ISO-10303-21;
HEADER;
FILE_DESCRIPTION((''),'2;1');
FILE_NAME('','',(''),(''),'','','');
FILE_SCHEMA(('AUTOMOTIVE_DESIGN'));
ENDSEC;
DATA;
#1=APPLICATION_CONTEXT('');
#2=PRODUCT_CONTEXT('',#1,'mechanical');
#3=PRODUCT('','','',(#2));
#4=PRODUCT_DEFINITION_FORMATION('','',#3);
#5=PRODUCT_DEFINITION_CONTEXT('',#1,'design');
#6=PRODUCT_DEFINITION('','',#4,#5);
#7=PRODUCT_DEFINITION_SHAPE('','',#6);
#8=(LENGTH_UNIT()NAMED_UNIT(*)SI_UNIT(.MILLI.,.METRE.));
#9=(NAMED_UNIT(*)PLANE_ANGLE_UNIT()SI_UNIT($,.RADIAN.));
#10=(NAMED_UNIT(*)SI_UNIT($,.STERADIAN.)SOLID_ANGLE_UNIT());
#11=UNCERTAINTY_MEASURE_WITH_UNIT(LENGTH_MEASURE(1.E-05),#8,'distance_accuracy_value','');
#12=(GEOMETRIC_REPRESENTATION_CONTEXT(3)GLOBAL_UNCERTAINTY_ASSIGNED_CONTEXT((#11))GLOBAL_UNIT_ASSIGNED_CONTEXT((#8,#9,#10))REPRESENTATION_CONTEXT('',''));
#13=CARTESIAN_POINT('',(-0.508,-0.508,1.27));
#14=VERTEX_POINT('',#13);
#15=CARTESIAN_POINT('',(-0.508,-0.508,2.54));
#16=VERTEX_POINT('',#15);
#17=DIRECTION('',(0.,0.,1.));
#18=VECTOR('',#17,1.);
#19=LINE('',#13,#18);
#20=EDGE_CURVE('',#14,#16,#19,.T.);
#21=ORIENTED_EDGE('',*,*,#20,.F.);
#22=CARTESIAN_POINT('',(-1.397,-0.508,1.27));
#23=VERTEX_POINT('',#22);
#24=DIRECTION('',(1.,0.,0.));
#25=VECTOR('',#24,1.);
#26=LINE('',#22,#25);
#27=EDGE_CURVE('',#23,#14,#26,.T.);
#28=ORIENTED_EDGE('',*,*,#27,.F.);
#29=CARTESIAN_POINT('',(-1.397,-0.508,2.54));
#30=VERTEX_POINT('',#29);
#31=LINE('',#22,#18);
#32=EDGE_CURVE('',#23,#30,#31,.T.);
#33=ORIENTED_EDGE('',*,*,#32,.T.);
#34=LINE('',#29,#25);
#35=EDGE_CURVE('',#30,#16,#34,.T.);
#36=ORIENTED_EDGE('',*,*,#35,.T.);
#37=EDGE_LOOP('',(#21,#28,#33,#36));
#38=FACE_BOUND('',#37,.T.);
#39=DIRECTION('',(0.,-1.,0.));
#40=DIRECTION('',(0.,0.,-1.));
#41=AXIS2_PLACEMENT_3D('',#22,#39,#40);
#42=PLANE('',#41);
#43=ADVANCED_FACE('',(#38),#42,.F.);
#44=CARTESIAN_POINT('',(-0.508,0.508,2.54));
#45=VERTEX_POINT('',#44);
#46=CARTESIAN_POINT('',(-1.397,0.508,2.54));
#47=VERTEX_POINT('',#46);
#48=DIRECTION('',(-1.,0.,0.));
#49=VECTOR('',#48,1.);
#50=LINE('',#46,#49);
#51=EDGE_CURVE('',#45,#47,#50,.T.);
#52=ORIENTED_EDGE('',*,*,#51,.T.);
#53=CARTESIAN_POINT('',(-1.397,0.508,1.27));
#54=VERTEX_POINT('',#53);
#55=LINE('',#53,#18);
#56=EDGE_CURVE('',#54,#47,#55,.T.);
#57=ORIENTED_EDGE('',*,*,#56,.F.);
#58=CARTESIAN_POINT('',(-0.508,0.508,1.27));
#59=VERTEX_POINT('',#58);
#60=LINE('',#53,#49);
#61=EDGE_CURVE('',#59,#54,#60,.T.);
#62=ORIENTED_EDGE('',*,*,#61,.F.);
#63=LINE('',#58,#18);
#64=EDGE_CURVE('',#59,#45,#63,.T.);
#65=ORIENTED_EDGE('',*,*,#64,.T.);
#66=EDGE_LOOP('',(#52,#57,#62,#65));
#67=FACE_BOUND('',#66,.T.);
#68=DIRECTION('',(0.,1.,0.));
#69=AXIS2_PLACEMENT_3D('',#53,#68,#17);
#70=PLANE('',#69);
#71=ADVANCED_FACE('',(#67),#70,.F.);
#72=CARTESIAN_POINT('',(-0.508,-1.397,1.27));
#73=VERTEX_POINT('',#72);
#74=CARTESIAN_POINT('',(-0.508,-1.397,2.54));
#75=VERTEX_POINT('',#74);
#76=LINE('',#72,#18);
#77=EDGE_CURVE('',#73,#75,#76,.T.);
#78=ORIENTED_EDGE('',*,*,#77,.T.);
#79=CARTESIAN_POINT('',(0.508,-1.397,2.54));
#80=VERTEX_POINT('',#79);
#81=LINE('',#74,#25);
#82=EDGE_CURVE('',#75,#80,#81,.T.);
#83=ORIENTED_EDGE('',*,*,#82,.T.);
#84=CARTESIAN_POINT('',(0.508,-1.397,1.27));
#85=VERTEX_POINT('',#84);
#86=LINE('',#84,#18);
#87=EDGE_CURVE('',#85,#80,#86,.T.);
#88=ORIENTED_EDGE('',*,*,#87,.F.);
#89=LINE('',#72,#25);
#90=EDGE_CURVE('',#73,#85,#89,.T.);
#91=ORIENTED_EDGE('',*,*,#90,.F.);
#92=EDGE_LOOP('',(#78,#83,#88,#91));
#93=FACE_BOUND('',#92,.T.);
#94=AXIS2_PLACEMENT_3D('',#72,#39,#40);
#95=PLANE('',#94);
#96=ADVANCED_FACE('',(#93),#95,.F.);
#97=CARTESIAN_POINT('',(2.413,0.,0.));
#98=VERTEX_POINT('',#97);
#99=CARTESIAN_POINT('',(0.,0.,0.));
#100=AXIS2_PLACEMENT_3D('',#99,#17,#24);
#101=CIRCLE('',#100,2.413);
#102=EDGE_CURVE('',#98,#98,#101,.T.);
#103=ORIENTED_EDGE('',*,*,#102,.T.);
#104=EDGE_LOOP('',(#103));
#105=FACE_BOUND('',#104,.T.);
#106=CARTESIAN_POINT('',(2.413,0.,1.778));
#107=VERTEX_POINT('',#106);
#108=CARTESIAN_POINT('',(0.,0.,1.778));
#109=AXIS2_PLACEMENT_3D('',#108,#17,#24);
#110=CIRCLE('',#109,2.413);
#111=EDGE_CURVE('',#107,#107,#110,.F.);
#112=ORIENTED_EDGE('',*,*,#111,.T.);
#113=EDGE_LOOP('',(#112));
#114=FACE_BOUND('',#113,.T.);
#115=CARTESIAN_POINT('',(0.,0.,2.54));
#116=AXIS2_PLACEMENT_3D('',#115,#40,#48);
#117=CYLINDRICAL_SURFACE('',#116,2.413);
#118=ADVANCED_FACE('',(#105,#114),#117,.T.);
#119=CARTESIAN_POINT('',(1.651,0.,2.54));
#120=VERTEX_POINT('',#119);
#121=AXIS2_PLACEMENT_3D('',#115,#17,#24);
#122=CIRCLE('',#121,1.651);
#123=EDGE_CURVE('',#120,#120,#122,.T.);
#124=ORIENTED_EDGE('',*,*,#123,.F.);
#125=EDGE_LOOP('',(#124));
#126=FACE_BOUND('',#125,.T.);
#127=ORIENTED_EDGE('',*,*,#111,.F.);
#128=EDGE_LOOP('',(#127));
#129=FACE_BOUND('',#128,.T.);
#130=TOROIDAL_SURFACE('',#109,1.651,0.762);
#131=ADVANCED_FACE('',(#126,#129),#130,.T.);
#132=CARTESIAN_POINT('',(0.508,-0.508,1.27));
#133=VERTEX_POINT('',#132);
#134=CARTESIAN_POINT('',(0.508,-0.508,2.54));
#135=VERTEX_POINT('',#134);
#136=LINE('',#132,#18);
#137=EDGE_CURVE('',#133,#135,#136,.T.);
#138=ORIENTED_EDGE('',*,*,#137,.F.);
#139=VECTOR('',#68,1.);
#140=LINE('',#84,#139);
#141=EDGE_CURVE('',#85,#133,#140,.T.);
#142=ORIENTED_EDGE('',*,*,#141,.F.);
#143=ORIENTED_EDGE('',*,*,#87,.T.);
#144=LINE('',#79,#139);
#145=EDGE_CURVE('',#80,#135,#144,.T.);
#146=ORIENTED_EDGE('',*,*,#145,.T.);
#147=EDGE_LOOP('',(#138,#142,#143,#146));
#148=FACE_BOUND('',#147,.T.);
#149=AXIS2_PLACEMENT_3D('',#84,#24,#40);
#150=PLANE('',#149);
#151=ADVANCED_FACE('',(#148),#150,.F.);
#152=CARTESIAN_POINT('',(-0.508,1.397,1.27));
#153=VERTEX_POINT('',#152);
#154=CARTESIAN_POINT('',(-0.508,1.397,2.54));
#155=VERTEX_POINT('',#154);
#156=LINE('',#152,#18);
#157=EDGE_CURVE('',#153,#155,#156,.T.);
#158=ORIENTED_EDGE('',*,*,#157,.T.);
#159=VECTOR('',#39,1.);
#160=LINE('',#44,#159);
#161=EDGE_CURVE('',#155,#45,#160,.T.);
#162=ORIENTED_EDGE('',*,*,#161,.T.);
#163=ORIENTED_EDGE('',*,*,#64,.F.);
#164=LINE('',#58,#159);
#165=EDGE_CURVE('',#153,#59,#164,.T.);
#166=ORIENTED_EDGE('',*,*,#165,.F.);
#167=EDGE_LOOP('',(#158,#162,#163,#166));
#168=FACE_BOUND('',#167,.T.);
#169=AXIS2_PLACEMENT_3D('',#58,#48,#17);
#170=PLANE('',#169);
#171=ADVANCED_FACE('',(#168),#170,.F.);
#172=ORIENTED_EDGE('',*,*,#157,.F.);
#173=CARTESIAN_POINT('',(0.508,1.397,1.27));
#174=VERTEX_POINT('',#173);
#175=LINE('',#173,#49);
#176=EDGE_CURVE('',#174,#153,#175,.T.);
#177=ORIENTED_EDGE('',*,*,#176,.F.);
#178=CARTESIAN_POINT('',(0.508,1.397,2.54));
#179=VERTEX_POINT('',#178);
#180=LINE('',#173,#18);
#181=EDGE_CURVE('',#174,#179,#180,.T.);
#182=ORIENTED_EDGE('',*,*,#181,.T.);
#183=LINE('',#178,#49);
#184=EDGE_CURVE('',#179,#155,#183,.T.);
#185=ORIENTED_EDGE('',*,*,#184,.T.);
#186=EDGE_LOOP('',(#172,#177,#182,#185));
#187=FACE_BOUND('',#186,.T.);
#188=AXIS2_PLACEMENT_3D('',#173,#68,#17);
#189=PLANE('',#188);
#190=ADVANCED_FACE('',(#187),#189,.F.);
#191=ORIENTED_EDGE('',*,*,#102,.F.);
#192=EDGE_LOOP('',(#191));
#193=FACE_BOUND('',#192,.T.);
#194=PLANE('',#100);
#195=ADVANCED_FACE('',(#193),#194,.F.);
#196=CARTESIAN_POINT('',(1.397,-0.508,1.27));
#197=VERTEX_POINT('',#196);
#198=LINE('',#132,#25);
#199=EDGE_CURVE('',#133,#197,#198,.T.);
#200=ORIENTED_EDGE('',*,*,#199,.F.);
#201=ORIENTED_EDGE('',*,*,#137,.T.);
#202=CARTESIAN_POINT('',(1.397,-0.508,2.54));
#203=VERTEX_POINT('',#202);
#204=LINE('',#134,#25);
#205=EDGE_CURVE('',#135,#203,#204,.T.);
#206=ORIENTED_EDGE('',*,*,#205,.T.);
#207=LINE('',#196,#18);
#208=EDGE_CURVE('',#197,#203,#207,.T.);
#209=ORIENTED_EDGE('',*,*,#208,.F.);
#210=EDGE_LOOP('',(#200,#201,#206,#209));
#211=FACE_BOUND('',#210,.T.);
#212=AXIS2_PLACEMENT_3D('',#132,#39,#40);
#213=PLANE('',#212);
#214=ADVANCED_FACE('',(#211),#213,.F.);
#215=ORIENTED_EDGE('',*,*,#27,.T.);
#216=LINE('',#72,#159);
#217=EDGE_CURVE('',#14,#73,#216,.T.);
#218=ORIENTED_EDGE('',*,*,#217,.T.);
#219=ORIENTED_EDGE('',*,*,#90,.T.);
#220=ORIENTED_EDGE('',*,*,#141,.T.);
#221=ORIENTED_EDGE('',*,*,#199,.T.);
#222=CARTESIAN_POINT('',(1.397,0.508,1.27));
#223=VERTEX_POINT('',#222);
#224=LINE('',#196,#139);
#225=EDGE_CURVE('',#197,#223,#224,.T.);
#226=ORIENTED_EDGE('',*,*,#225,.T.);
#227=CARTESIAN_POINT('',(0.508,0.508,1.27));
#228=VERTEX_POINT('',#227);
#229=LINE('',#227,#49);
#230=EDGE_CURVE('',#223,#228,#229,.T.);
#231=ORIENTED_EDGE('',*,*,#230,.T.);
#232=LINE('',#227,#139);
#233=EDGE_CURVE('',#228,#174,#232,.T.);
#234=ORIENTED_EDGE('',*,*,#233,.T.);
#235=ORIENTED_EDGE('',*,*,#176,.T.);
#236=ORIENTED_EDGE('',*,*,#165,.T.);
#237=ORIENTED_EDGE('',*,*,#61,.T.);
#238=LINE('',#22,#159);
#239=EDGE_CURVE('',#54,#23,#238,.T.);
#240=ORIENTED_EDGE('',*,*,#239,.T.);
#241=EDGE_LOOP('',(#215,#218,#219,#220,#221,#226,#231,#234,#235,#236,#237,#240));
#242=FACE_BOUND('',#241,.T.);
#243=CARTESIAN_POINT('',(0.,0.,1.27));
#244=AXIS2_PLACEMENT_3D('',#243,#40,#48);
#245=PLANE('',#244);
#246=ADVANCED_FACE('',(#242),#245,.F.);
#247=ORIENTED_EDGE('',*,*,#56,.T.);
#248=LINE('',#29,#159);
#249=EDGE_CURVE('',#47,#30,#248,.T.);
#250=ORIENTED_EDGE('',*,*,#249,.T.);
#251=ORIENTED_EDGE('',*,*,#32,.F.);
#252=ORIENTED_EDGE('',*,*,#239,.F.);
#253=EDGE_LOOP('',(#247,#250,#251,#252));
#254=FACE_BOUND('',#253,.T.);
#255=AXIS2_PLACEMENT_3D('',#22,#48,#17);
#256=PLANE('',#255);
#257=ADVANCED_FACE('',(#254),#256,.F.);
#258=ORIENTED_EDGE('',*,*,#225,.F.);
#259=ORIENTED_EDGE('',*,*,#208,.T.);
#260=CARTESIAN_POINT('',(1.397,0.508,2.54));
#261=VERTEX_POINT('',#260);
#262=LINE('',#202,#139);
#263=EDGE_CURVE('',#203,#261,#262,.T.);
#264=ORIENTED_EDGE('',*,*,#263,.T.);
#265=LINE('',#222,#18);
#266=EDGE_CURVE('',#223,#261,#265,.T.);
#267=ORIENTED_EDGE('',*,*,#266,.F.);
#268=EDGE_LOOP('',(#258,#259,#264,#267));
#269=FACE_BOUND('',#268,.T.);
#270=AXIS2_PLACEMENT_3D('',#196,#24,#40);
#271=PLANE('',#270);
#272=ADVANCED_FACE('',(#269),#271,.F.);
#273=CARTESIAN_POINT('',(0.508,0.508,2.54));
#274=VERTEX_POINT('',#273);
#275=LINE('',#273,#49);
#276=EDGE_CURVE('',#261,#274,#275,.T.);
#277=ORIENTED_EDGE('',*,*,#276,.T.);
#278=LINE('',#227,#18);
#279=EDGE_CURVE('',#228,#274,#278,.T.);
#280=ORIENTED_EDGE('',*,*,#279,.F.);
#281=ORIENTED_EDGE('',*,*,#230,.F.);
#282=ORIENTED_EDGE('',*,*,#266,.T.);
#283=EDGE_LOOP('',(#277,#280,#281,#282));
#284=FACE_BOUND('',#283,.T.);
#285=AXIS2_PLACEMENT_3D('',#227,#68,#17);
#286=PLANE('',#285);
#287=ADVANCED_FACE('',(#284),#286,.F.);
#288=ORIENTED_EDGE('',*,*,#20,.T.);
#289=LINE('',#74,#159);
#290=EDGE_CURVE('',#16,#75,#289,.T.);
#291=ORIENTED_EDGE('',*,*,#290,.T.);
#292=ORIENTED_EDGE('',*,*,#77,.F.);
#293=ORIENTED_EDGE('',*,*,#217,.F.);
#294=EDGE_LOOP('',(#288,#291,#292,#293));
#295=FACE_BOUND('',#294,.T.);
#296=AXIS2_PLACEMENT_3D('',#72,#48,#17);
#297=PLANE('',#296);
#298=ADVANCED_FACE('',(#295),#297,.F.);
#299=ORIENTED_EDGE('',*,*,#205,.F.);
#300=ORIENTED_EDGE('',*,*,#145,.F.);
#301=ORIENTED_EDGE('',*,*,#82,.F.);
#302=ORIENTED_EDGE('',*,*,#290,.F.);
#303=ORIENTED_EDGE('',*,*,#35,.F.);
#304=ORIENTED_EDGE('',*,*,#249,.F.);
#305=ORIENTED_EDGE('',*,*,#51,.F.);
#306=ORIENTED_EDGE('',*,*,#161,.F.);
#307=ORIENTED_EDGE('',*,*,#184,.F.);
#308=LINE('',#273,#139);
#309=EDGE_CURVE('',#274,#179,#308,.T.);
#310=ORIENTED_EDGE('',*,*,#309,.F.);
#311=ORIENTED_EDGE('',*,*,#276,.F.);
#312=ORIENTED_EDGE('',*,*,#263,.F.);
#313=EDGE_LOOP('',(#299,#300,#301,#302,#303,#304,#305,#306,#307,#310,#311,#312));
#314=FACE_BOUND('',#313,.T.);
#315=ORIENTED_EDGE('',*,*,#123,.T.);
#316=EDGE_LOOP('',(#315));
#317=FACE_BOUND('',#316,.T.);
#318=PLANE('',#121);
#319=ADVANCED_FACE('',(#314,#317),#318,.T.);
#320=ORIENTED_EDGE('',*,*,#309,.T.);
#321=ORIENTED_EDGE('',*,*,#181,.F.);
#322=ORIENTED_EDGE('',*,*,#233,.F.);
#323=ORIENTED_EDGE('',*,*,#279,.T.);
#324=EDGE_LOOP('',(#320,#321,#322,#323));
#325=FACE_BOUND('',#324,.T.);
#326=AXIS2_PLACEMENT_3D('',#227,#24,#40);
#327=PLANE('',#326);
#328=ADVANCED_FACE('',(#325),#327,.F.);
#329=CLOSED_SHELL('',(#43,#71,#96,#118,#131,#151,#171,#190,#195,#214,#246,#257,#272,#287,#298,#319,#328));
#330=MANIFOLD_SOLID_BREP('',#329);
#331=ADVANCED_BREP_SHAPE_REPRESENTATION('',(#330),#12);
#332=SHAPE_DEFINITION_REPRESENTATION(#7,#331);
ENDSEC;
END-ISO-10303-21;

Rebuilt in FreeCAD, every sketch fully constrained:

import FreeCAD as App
import Part
import Sketcher

V = App.Vector
Q = App.Units.Quantity


def edges_at(feature, points):
    """Names of the edges that pass closest to the given points."""
    edges = feature.Shape.Edges
    near = lambda p: min(range(len(edges)), key=lambda i: edges[i].distToShape(Part.Vertex(*p))[0])
    return sorted({f"Edge{near(p) + 1}" for p in points})


def add_polygon(sketch, points):
    """Adds a closed chain of lines whose ends are joined by coincident constraints."""
    first, n = sketch.GeometryCount, len(points)
    for a, b in zip(points, points[1:] + points[:1]):
        sketch.addGeometry(Part.LineSegment(App.Vector(*a, 0), App.Vector(*b, 0)), False)
    for i in range(n):
        sketch.addConstraint(Sketcher.Constraint("Coincident", first + i, 2, first + (i + 1) % n, 1))

doc = App.newDocument("Part")
params = doc.addObject("Spreadsheet::Sheet", "Params")
for row, (alias, value) in enumerate([
    ("sketch1_diameter", "0.19 in"),
    ("pad1_length", "0.1 in"),
    ("sketch2_width", "0.04 in"),
    ("sketch2_width2", "0.035 in"),
    ("pocket1_length", "0.05 in"),
    ("fillet_radius", "0.03 in"),
], start=1):
    params.set(f"A{row}", alias)
    params.set(f"B{row}", "=" + value)
    params.setAlias(f"B{row}", alias)

body = doc.addObject("PartDesign::Body", "Body")

# Sketch on XY plane
sketch1 = body.newObject("Sketcher::SketchObject", "Sketch")
sketch1.AttachmentSupport = (doc.getObject("XY_Plane"), [""])
sketch1.MapMode = "FlatFace"
sketch1.addGeometry(Part.Circle(V(0, 0, 0), V(0, 0, 1), 2.413), False)
sketch1.addConstraint(Sketcher.Constraint("Coincident", 0, 3, -1, 1))
sketch1.addConstraint(Sketcher.Constraint("Diameter", 0, Q("0.19 in")))
sketch1.setExpression("Constraints[1]", "Params.sketch1_diameter")
pad1 = body.newObject("PartDesign::Pad", "Pad")
pad1.Profile = sketch1
pad1.setExpression("Length", "Params.pad1_length")

# Sketch on XY plane
sketch2 = body.newObject("Sketcher::SketchObject", "Sketch001")
sketch2.AttachmentSupport = (doc.getObject("XY_Plane"), [""])
sketch2.MapMode = "FlatFace"
sketch2.AttachmentOffset = App.Placement(V(0, 0, 0.1 * 25.4), App.Rotation())
add_polygon(sketch2, [(-0.508, 1.397), (-0.508, 0.508), (-1.397, 0.508), (-1.397, -0.508), (-0.508, -0.508), (-0.508, -1.397), (0.508, -1.397), (0.508, -0.508), (1.397, -0.508), (1.397, 0.508), (0.508, 0.508), (0.508, 1.397)])  # lines 0-11
sketch2.addConstraint(Sketcher.Constraint("Vertical", 0))
sketch2.addConstraint(Sketcher.Constraint("Horizontal", 1))
sketch2.addConstraint(Sketcher.Constraint("Vertical", 2))
sketch2.addConstraint(Sketcher.Constraint("Horizontal", 3))
sketch2.addConstraint(Sketcher.Constraint("Vertical", 4))
sketch2.addConstraint(Sketcher.Constraint("Horizontal", 5))
sketch2.addConstraint(Sketcher.Constraint("Vertical", 6))
sketch2.addConstraint(Sketcher.Constraint("Horizontal", 7))
sketch2.addConstraint(Sketcher.Constraint("Vertical", 8))
sketch2.addConstraint(Sketcher.Constraint("Horizontal", 9))
sketch2.addConstraint(Sketcher.Constraint("Vertical", 10))
sketch2.addConstraint(Sketcher.Constraint("Horizontal", 11))
sketch2.addConstraint(Sketcher.Constraint("Symmetric", 0, 2, 6, 2, -1, 1))
sketch2.addConstraint(Sketcher.Constraint("Symmetric", 2, 2, 8, 2, -1, 1))
sketch2.addConstraint(Sketcher.Constraint("Symmetric", 4, 2, 10, 2, -1, 1))
sketch2.addConstraint(Sketcher.Constraint("Symmetric", 3, 2, 6, 2, -2))
sketch2.addConstraint(Sketcher.Constraint("Equal", 9, 0))
sketch2.addConstraint(Sketcher.Constraint("Equal", 11, 2))
sketch2.addConstraint(Sketcher.Constraint("DistanceX", 5, 1, 5, 2, Q("0.04 in")))
sketch2.addConstraint(Sketcher.Constraint("DistanceX", 1, 2, 1, 1, Q("0.035 in")))
sketch2.setExpression("Constraints[30]", "Params.sketch2_width")
sketch2.setExpression("Constraints[31]", "Params.sketch2_width2")
pocket1 = body.newObject("PartDesign::Pocket", "Pocket")
pocket1.Profile = sketch2
pocket1.setExpression("Length", "Params.pocket1_length")
doc.recompute()

fillet = body.newObject("PartDesign::Fillet", "Fillet")
fillet.Base = (pocket1, edges_at(pocket1, [(-2.413, 0, 2.54)]))
fillet.setExpression("Radius", "Params.fillet_radius")

doc.recompute()
